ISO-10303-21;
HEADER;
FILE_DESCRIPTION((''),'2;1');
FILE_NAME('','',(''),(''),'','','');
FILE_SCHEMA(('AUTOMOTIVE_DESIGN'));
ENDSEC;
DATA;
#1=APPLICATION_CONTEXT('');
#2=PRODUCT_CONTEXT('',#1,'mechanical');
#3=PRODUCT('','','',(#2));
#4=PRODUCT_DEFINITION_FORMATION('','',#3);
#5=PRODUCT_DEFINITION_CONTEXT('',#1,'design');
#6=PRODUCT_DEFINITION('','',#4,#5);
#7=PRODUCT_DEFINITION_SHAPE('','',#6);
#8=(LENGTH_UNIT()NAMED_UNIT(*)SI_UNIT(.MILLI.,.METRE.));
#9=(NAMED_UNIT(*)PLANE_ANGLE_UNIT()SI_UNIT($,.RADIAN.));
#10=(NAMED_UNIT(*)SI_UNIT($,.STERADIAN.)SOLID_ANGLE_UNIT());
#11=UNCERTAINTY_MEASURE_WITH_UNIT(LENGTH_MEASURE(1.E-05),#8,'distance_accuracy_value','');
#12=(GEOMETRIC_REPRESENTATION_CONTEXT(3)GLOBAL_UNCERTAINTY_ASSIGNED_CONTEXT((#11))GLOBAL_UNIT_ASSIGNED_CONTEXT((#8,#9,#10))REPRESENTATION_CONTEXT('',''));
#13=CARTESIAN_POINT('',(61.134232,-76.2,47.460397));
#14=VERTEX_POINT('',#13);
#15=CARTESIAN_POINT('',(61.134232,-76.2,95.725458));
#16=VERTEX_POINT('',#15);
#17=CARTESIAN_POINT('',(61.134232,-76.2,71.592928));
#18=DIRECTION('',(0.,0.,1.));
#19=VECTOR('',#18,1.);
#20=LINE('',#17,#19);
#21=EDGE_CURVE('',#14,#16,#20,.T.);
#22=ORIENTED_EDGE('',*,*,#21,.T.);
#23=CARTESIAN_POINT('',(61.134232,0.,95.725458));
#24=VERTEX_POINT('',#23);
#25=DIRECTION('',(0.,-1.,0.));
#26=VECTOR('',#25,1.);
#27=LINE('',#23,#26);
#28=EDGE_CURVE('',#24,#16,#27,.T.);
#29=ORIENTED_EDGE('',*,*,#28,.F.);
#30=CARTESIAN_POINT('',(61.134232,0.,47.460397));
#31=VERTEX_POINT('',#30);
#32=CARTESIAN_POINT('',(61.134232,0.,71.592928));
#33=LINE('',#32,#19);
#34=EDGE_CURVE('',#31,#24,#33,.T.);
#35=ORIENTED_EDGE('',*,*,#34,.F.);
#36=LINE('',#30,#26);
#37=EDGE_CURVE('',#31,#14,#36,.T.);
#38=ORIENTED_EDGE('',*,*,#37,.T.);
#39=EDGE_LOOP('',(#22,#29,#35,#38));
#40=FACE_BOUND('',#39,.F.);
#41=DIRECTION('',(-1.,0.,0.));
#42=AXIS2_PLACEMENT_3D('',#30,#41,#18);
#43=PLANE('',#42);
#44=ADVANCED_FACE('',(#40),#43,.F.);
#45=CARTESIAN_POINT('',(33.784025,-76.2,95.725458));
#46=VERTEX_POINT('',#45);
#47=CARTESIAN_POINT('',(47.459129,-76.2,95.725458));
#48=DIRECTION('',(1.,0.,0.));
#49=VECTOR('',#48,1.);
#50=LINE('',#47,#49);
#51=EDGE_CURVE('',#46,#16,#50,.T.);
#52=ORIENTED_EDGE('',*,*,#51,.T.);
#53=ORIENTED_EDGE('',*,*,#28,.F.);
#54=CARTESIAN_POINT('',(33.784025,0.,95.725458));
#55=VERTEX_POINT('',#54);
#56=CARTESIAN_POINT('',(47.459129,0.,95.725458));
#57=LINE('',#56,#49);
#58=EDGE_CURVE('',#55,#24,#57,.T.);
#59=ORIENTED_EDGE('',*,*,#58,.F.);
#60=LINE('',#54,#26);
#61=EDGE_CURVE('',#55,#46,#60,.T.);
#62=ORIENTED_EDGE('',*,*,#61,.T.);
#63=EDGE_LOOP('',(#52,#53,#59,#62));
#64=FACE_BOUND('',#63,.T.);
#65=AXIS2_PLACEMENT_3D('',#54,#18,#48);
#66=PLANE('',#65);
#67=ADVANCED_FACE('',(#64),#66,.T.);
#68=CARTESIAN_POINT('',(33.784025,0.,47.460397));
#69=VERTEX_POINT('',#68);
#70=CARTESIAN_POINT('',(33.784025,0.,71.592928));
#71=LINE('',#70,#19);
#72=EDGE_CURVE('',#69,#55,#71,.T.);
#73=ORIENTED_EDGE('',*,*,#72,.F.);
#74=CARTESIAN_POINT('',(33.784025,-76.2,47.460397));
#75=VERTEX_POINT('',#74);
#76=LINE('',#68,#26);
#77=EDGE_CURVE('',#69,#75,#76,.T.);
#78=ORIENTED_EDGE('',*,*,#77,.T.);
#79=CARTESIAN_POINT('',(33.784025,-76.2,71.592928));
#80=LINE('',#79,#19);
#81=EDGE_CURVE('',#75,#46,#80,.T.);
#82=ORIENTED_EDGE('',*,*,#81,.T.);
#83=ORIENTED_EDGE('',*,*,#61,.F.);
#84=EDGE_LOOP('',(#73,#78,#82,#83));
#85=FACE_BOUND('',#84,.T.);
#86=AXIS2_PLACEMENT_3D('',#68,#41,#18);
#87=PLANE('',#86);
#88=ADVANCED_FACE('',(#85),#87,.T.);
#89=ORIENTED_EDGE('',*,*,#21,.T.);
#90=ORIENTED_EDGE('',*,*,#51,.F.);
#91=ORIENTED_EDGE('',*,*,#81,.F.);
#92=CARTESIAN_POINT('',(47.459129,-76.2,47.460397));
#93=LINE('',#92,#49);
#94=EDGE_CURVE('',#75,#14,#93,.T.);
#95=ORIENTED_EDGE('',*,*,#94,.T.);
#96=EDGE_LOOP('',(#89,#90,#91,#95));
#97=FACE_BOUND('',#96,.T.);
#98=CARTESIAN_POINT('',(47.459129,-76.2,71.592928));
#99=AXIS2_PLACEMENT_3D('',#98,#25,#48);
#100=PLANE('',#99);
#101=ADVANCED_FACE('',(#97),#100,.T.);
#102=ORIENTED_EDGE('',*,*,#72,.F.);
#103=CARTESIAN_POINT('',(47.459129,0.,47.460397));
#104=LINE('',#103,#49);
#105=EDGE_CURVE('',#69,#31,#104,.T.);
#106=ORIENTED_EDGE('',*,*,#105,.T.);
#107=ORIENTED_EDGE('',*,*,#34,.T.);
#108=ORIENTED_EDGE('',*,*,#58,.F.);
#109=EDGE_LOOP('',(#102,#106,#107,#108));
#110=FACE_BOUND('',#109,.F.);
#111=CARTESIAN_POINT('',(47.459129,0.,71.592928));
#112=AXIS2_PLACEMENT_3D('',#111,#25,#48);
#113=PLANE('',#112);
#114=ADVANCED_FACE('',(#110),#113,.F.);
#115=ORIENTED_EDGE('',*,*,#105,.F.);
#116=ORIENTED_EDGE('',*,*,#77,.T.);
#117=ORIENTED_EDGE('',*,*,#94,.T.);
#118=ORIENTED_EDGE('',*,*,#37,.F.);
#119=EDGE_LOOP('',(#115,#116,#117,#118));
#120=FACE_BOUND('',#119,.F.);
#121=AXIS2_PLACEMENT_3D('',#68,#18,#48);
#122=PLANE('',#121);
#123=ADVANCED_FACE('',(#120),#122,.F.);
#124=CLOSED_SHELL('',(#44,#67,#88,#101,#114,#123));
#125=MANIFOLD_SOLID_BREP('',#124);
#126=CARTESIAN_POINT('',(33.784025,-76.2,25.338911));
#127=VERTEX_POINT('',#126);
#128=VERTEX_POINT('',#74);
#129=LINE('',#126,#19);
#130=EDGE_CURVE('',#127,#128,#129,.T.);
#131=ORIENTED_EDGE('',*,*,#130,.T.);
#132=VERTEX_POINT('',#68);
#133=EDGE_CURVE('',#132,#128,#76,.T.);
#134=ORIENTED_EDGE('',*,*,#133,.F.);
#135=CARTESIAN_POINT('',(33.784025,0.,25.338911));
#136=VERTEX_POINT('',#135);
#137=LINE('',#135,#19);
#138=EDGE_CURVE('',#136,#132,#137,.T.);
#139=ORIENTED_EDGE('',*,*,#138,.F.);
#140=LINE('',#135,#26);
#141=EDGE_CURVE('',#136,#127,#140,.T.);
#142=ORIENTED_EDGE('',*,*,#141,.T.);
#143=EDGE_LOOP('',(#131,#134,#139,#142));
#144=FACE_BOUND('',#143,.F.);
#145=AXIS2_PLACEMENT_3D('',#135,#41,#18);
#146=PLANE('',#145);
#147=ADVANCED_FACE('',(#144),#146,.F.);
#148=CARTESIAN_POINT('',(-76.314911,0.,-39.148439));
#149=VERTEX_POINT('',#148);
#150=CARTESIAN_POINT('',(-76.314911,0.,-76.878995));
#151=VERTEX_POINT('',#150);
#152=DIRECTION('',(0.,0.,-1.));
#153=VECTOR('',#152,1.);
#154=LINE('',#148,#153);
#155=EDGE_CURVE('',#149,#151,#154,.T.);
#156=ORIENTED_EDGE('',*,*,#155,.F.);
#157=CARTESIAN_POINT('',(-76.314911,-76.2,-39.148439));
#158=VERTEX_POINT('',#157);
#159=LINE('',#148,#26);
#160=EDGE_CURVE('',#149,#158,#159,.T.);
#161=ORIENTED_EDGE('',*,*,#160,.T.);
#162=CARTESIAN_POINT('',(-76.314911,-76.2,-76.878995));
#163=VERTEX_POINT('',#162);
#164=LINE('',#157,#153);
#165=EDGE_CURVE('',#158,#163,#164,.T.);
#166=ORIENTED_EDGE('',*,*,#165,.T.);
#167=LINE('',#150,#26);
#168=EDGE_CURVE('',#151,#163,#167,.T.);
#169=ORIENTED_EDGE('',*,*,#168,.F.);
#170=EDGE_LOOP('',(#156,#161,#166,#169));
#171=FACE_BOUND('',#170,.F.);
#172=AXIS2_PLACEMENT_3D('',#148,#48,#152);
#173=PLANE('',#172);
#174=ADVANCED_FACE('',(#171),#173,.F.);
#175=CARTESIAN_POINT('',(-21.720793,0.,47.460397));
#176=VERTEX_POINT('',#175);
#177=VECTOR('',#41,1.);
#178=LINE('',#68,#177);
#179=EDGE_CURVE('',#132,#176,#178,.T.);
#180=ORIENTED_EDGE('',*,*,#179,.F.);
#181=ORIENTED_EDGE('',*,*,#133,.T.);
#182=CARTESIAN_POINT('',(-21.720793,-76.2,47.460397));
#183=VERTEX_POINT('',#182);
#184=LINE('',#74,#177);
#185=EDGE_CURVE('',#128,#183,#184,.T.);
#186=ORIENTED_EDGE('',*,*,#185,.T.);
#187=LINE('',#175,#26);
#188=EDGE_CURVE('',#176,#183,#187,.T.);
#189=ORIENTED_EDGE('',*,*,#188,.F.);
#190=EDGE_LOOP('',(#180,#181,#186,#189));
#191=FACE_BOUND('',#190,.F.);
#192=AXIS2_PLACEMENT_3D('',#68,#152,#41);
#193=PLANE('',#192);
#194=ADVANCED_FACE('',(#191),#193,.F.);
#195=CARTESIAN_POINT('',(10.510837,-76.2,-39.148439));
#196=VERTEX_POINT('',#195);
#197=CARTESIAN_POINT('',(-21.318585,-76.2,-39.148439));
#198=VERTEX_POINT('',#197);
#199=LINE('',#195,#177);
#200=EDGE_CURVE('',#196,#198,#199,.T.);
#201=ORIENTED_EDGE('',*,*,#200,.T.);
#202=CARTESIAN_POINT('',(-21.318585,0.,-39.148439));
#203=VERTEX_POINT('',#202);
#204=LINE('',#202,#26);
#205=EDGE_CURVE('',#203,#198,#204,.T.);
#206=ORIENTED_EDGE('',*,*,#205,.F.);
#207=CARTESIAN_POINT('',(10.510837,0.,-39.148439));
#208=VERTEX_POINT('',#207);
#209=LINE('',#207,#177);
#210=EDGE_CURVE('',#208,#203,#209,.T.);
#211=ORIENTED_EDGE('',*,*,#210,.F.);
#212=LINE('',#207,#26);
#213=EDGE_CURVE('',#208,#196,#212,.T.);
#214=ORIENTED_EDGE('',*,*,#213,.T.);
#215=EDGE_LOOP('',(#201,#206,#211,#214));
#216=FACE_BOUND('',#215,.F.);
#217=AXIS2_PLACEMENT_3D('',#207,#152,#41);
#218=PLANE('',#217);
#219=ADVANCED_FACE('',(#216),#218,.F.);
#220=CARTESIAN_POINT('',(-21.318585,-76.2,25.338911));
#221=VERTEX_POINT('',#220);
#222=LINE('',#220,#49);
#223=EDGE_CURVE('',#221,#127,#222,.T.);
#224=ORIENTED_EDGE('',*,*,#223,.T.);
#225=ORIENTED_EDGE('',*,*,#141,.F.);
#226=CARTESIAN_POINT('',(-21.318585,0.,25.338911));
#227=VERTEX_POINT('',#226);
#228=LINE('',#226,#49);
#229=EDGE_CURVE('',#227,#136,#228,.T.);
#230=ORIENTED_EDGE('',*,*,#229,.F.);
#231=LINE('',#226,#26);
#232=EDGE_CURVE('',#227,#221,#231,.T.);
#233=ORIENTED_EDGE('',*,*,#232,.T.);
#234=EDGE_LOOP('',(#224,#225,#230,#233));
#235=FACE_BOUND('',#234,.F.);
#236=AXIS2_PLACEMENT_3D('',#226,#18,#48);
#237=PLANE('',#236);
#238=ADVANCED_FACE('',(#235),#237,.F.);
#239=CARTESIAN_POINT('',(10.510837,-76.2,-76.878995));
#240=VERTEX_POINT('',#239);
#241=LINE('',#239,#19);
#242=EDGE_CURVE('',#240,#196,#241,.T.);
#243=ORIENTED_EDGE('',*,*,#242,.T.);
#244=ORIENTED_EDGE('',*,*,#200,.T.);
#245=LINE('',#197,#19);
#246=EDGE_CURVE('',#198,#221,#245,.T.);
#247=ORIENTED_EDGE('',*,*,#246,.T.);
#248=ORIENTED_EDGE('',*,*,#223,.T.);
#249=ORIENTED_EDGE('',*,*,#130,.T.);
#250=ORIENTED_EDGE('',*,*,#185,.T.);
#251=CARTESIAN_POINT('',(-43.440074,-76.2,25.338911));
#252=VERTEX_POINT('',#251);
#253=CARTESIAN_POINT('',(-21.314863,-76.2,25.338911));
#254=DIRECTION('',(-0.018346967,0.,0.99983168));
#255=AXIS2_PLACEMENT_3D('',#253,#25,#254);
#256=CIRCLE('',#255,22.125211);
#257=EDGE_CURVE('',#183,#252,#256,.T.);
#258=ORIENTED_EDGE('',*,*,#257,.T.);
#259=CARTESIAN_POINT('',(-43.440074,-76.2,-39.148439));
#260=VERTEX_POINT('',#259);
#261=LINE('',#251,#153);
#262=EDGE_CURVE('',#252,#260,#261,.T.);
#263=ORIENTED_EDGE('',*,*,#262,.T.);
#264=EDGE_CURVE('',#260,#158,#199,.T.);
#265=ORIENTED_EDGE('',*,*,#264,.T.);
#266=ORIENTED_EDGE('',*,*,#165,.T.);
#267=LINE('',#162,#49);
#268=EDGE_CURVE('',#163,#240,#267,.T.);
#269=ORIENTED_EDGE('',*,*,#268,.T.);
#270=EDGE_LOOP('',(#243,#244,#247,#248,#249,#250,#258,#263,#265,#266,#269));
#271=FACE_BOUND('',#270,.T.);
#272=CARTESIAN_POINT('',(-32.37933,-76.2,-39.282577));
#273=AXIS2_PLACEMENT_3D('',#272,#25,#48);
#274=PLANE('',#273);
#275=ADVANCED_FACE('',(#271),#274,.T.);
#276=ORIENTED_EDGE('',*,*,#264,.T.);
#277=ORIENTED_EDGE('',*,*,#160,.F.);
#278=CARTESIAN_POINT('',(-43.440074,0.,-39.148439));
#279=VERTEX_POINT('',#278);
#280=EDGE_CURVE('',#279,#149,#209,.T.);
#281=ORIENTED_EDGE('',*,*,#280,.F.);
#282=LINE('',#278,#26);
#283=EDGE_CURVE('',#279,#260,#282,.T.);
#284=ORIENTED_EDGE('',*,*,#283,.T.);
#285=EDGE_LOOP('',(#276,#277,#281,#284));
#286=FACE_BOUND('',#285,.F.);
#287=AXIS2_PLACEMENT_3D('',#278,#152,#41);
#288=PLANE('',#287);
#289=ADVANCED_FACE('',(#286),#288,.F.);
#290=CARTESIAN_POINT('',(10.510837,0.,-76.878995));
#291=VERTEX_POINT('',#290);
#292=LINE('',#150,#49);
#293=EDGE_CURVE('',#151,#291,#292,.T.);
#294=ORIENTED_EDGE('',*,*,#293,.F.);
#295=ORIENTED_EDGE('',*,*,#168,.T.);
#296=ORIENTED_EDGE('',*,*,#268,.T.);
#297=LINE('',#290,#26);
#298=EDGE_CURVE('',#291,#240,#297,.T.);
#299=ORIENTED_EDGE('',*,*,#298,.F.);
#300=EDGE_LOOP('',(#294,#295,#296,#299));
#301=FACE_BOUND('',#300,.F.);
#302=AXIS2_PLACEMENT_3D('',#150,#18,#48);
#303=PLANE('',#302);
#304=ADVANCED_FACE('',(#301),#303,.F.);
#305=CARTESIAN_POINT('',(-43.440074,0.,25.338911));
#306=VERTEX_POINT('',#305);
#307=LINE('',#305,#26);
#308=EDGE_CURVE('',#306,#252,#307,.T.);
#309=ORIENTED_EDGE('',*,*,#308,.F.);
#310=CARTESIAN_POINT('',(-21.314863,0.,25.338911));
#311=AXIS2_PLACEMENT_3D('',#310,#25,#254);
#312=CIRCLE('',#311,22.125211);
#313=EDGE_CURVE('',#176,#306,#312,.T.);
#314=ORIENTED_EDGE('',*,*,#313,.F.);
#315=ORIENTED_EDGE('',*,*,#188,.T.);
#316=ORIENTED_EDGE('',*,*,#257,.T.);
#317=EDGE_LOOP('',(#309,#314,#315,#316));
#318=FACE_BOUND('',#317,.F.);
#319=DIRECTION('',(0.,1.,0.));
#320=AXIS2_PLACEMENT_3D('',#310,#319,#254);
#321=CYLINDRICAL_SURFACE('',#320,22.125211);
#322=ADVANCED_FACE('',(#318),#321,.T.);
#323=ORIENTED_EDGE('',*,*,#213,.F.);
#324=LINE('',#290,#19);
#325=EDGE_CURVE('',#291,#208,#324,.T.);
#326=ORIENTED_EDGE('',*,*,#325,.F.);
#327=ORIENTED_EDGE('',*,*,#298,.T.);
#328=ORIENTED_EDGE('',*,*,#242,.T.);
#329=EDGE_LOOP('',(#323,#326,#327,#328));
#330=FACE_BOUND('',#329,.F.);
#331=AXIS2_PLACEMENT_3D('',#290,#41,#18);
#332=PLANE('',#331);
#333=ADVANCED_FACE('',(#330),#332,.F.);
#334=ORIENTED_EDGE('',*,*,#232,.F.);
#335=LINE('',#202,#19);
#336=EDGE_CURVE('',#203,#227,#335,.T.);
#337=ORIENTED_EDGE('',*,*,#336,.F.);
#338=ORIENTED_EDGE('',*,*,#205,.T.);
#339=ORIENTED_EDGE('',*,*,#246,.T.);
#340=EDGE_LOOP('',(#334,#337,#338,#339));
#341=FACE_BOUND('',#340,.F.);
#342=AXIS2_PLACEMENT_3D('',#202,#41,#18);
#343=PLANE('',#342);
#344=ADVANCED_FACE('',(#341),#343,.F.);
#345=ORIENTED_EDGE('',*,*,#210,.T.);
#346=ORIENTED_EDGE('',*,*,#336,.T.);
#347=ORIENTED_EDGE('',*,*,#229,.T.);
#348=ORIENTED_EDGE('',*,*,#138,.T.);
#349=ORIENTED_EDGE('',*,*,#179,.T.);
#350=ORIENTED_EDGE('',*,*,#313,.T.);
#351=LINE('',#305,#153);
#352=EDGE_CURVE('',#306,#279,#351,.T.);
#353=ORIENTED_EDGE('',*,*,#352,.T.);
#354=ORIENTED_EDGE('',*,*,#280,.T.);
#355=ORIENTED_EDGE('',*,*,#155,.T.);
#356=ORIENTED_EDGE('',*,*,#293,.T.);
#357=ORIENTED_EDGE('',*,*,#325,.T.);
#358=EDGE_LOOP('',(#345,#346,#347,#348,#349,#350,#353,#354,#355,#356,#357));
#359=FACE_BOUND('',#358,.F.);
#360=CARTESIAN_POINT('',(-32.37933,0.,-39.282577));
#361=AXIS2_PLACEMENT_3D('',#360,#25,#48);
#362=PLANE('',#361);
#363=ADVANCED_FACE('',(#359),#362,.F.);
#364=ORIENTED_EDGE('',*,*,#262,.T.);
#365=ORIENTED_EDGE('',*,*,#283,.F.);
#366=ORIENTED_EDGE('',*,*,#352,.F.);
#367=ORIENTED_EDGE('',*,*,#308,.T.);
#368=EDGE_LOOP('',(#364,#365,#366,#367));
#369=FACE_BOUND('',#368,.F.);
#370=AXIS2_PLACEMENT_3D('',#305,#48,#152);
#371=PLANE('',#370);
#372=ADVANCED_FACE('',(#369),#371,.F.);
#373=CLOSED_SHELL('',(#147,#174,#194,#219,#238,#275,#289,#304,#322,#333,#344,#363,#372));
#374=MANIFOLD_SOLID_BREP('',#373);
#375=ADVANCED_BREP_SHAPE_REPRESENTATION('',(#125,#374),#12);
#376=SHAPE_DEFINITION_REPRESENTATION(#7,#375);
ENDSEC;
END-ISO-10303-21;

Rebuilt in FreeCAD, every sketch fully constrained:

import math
import FreeCAD as App
import Part
import Sketcher
Q = App.Units.Quantity


def add_polygon(sketch, points):
    """Adds a closed chain of lines whose ends are joined by coincident constraints."""
    first, n = sketch.GeometryCount, len(points)
    for a, b in zip(points, points[1:] + points[:1]):
        sketch.addGeometry(Part.LineSegment(App.Vector(*a, 0), App.Vector(*b, 0)), False)
    for i in range(n):
        sketch.addConstraint(Sketcher.Constraint("Coincident", first + i, 2, first + (i + 1) % n, 1))

doc = App.newDocument("Part")
body = doc.addObject("PartDesign::Body", "Body")

# Sketch on XZ plane
sketch1 = body.newObject("Sketcher::SketchObject", "Sketch")
sketch1.AttachmentSupport = (doc.getObject("XZ_Plane"), [""])
sketch1.MapMode = "FlatFace"
sketch1.addGeometry([
    Part.LineSegment(App.Vector(-76.314911, -39.148439, 0), App.Vector(-76.314911, -76.878995, 0)),  # 0
    Part.LineSegment(App.Vector(-76.314911, -76.878995, 0), App.Vector(10.510837, -76.878995, 0)),  # 1
    Part.LineSegment(App.Vector(10.510837, -76.878995, 0), App.Vector(10.510837, -39.148439, 0)),  # 2
    Part.LineSegment(App.Vector(10.510837, -39.148439, 0), App.Vector(-21.318585, -39.148439, 0)),  # 3
    Part.LineSegment(App.Vector(-21.318585, -39.148439, 0), App.Vector(-21.318585, 25.338911, 0)),  # 4
    Part.LineSegment(App.Vector(-21.318585, 25.338911, 0), App.Vector(33.784025, 25.338911, 0)),  # 5
    Part.LineSegment(App.Vector(33.784025, 25.338911, 0), App.Vector(33.784025, 47.460397, 0)),  # 6
    Part.LineSegment(App.Vector(33.784025, 47.460397, 0), App.Vector(-21.720793, 47.460397, 0)),  # 7
    Part.ArcOfCircle(Part.Circle(App.Vector(-21.314863, 25.338911, 0), App.Vector(0, 0, 1), 22.125211), math.radians(91.051263), math.radians(180)),  # 8
    Part.LineSegment(App.Vector(-43.440074, 25.338911, 0), App.Vector(-43.440074, -39.148439, 0)),  # 9
    Part.LineSegment(App.Vector(-43.440074, -39.148439, 0), App.Vector(-76.314911, -39.148439, 0)),  # 10
], False)
sketch1.addConstraint([
    Sketcher.Constraint("Coincident", 0, 2, 1, 1),
    Sketcher.Constraint("Coincident", 1, 2, 2, 1),
    Sketcher.Constraint("Coincident", 2, 2, 3, 1),
    Sketcher.Constraint("Coincident", 3, 2, 4, 1),
    Sketcher.Constraint("Coincident", 4, 2, 5, 1),
    Sketcher.Constraint("Coincident", 5, 2, 6, 1),
    Sketcher.Constraint("Coincident", 6, 2, 7, 1),
    Sketcher.Constraint("Coincident", 7, 2, 8, 1),
    Sketcher.Constraint("Tangent", 8, 2, 9, 1),
    Sketcher.Constraint("Coincident", 9, 2, 10, 1),
    Sketcher.Constraint("Coincident", 10, 2, 0, 1),
    Sketcher.Constraint("Vertical", 0),
    Sketcher.Constraint("Horizontal", 1),
    Sketcher.Constraint("Vertical", 2),
    Sketcher.Constraint("Horizontal", 3),
    Sketcher.Constraint("Vertical", 4),
    Sketcher.Constraint("Horizontal", 5),
    Sketcher.Constraint("Vertical", 6),
    Sketcher.Constraint("Horizontal", 7),
    Sketcher.Constraint("Vertical", 9),
    Sketcher.Constraint("Horizontal", 10),
    Sketcher.Constraint("Horizontal", 8, 3, 4, 2),
    Sketcher.Constraint("Horizontal", 3, 2, 9, 2),
    Sketcher.Constraint("Radius", 8, 22.125211),
    Sketcher.Constraint("DistanceX", 5, 1, 5, 2, 55.102611),
    Sketcher.Constraint("DistanceX", 7, 2, 7, 1, 55.504819),
    Sketcher.Constraint("DistanceY", 4, 1, 4, 2, 64.487349),
    Sketcher.Constraint("DistanceX", 8, 3, 1, 2, 31.8257),
    Sketcher.Constraint("DistanceX", 8, 2, 5, 2, 77.224099),
    Sketcher.Constraint("DistanceX", 1, 1, 1, 2, 86.825748),
    Sketcher.Constraint("DistanceY", 0, 2, 0, 1, 37.730556),
    Sketcher.Constraint("DistanceY", -1, 1, 8, 3, 25.338911),
    Sketcher.Constraint("DistanceX", 0, 2, -1, 1, 76.314911),
])
pad1 = body.newObject("PartDesign::Pad", "Pad")
pad1.Profile = sketch1
pad1.Length = Q("3 in")
body2 = doc.addObject("PartDesign::Body", "Body001")

# Sketch on XZ plane
sketch2 = body2.newObject("Sketcher::SketchObject", "Sketch001")
sketch2.AttachmentSupport = (doc.getObject("XZ_Plane001"), [""])
sketch2.MapMode = "FlatFace"
add_polygon(sketch2, [(33.784025, 95.725458), (33.784025, 47.460397), (61.134232, 47.460397), (61.134232, 95.725458)])  # lines 0-3
sketch2.addConstraint([
    Sketcher.Constraint("Vertical", 0),
    Sketcher.Constraint("Horizontal", 1),
    Sketcher.Constraint("Vertical", 2),
    Sketcher.Constraint("Horizontal", 3),
    Sketcher.Constraint("DistanceY", 0, 2, 0, 1, 48.265061),
    Sketcher.Constraint("DistanceX", 1, 1, 1, 2, 27.350206),
    Sketcher.Constraint("DistanceX", -1, 1, 1, 2, 61.134232),
    Sketcher.Constraint("DistanceY", -1, 1, 2, 2, 95.725458),
])
pad2 = body2.newObject("PartDesign::Pad", "Pad001")
pad2.Profile = sketch2
pad2.Length = Q("3 in")

doc.recompute()
